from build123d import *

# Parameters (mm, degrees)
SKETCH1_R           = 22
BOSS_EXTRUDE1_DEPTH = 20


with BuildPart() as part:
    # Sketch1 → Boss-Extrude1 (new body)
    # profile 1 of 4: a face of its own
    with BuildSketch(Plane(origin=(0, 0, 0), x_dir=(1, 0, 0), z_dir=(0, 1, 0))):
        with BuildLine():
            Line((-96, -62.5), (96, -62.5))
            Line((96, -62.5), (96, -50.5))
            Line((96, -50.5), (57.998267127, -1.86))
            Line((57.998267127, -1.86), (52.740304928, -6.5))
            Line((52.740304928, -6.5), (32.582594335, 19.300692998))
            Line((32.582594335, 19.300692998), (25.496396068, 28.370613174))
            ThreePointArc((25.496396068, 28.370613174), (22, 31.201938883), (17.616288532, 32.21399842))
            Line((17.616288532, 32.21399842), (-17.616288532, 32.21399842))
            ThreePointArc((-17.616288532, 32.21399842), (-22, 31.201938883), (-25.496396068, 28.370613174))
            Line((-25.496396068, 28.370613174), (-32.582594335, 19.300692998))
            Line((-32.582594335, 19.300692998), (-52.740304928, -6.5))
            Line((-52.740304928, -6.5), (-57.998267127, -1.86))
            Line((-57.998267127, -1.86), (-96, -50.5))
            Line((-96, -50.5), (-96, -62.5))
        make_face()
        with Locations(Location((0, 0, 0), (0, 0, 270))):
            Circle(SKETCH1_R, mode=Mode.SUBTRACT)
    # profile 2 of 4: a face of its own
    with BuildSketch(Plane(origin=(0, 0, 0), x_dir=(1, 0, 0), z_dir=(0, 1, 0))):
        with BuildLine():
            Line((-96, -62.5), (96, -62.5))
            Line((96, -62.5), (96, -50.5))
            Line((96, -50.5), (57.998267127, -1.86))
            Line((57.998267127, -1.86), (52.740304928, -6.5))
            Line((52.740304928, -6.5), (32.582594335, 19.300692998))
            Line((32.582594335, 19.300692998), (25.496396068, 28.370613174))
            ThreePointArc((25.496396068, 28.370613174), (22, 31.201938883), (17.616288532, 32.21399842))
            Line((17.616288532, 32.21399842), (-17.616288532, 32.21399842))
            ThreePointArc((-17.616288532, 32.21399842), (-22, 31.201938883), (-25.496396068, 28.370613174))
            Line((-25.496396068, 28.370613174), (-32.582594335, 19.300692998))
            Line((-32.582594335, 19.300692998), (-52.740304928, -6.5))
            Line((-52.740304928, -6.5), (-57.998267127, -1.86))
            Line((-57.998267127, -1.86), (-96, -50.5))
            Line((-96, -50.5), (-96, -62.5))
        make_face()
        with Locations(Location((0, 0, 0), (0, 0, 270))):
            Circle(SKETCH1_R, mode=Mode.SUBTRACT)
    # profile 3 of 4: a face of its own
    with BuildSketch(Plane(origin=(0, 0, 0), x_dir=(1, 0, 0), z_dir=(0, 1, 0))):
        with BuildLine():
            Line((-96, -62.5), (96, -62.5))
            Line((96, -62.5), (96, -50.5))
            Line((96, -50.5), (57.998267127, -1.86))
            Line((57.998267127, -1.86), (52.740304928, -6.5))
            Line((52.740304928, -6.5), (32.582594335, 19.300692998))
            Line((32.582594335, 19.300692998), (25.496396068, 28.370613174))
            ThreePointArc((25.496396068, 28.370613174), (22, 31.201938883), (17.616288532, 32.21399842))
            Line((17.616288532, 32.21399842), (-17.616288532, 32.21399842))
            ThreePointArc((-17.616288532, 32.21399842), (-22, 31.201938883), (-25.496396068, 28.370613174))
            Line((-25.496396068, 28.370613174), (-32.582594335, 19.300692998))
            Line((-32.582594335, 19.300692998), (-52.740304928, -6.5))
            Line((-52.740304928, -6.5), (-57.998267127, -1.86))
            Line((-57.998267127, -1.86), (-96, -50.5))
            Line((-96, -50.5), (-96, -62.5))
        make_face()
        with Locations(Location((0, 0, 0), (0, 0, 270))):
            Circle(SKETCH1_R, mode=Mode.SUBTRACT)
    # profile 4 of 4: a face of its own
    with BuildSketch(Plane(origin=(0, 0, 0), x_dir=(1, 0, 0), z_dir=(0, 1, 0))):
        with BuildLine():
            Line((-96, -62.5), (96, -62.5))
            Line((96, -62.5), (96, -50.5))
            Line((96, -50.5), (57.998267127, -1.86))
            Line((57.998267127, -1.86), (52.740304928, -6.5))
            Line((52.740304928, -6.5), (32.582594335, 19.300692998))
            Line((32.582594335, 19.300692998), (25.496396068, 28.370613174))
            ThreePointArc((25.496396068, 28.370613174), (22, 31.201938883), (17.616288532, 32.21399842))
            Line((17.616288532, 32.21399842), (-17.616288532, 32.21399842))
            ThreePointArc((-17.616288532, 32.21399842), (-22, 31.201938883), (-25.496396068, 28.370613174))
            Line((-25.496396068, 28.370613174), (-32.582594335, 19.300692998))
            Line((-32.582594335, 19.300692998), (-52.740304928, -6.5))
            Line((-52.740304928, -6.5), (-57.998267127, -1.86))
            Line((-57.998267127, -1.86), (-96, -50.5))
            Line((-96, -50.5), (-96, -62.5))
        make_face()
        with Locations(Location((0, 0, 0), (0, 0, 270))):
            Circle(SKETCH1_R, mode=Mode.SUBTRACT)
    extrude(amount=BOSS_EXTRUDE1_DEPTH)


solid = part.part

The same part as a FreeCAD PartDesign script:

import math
import FreeCAD as App
import Part
import Sketcher
Q = App.Units.Quantity

doc = App.newDocument("Part")
body = doc.addObject("PartDesign::Body", "Body")

# Sketch on XZ plane
sketch1 = body.newObject("Sketcher::SketchObject", "Sketch")
sketch1.AttachmentSupport = (doc.getObject("XZ_Plane"), [""])
sketch1.MapMode = "FlatFace"
sketch1.addGeometry([
    Part.LineSegment(App.Vector(-96, 62, 0), App.Vector(96, 62, 0)),  # 0
    Part.LineSegment(App.Vector(96, 62, 0), App.Vector(96, 50, 0)),  # 1
    Part.LineSegment(App.Vector(96, 50, 0), App.Vector(58, 2, 0)),  # 2
    Part.LineSegment(App.Vector(58, 2, 0), App.Vector(53, 6, 0)),  # 3
    Part.LineSegment(App.Vector(53, 6, 0), App.Vector(33, -19, 0)),  # 4
    Part.LineSegment(App.Vector(33, -19, 0), App.Vector(25, -28, 0)),  # 5
    Part.ArcOfCircle(Part.Circle(App.Vector(18, -22, 0), App.Vector(0, 0, 1), 10), math.radians(-90), math.radians(-38)),  # 6
    Part.LineSegment(App.Vector(18, -32, 0), App.Vector(-18, -32, 0)),  # 7
    Part.ArcOfCircle(Part.Circle(App.Vector(-18, -22, 0), App.Vector(0, 0, 1), 10), math.radians(-142), math.radians(-90)),  # 8
    Part.LineSegment(App.Vector(-25, -28, 0), App.Vector(-33, -19, 0)),  # 9
    Part.LineSegment(App.Vector(-33, -19, 0), App.Vector(-53, 6, 0)),  # 10
    Part.LineSegment(App.Vector(-53, 6, 0), App.Vector(-58, 2, 0)),  # 11
    Part.LineSegment(App.Vector(-58, 2, 0), App.Vector(-96, 50, 0)),  # 12
    Part.LineSegment(App.Vector(-96, 50, 0), App.Vector(-96, 62, 0)),  # 13
    Part.Circle(App.Vector(0, 0, 0), App.Vector(0, 0, 1), 22),  # 14
], False)
sketch1.addConstraint([
    Sketcher.Constraint("Coincident", 0, 2, 1, 1),
    Sketcher.Constraint("Coincident", 1, 2, 2, 1),
    Sketcher.Constraint("Coincident", 2, 2, 3, 1),
    Sketcher.Constraint("Coincident", 3, 2, 4, 1),
    Sketcher.Constraint("Coincident", 4, 2, 5, 1),
    Sketcher.Constraint("Tangent", 5, 2, 6, 2),
    Sketcher.Constraint("Tangent", 6, 1, 7, 1),
    Sketcher.Constraint("Tangent", 7, 2, 8, 2),
    Sketcher.Constraint("Tangent", 8, 1, 9, 1),
    Sketcher.Constraint("Coincident", 9, 2, 10, 1),
    Sketcher.Constraint("Coincident", 10, 2, 11, 1),
    Sketcher.Constraint("Coincident", 11, 2, 12, 1),
    Sketcher.Constraint("Coincident", 12, 2, 13, 1),
    Sketcher.Constraint("Coincident", 13, 2, 0, 1),
    Sketcher.Constraint("Horizontal", 0),
    Sketcher.Constraint("Vertical", 1),
    Sketcher.Constraint("Horizontal", 7),
    Sketcher.Constraint("Vertical", 13),
    Sketcher.Constraint("Coincident", 14, 3, -1, 1),
    Sketcher.Constraint("Equal", 6, 8),
    Sketcher.Constraint("Symmetric", 5, 2, 8, 1, -2),
    Sketcher.Constraint("Symmetric", 3, 2, 10, 2, -2),
    Sketcher.Constraint("Symmetric", 2, 2, 11, 2, -2),
    Sketcher.Constraint("Symmetric", 1, 2, 12, 2, -2),
    Sketcher.Constraint("Parallel", 2, 4),
    Sketcher.Constraint("Parallel", 4, 5),
    Sketcher.Constraint("Horizontal", 4, 2, 9, 2),
    Sketcher.Constraint("Diameter", 14, 44.0),
    Sketcher.Constraint("Radius", 6, 10.0),
    Sketcher.Constraint("DistanceX", 0, 1, 0, 2, 192.0),
    Sketcher.Constraint("DistanceY", 1, 2, 1, 1, 12.0),
    Sketcher.Constraint("Angle", 2, Q("-128 deg")),
    Sketcher.Constraint("DistanceY", 3, 2, 1, 2, 44.0),
    Sketcher.Constraint("DistanceY", -1, 1, 0, 2, 62.5),
    Sketcher.Constraint("DistanceY", -1, 1, 2, 2, 1.86),
    Sketcher.Constraint("DistanceY", 6, 3, -1, 1, 22.213998),
    Sketcher.Constraint("DistanceX", 5, 2, 4, 2, 7.086198),
    Sketcher.Constraint("DistanceX", 7, 2, 7, 1, 35.232577),
])
pad1 = body.newObject("PartDesign::Pad", "Pad")
pad1.Profile = sketch1
pad1.Length = 20
pad1.Reversed = True

doc.recompute()
